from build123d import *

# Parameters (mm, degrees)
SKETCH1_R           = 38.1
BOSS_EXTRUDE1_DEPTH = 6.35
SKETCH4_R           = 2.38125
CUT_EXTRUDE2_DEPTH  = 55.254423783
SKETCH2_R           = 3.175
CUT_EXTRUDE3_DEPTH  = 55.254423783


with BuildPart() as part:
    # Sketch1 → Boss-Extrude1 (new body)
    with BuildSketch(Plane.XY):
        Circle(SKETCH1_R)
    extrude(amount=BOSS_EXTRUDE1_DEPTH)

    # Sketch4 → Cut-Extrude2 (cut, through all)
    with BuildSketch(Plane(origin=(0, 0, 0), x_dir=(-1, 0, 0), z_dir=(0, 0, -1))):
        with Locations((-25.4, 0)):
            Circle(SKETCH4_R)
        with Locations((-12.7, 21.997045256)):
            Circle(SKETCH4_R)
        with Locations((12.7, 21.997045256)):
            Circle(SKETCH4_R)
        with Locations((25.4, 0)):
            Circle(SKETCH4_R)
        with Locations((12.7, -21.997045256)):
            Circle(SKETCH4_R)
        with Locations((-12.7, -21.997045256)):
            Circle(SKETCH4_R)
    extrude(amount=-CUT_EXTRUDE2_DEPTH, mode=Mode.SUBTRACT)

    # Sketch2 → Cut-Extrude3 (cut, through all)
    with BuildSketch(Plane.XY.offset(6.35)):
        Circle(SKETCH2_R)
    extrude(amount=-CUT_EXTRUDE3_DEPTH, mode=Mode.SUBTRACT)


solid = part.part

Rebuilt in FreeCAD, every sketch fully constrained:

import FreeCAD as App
import Part
import Sketcher

V = App.Vector
Q = App.Units.Quantity

doc = App.newDocument("Part")
params = doc.addObject("Spreadsheet::Sheet", "Params")
for row, (alias, value) in enumerate([
    ("sketch1_diameter", "3 in"),
    ("pad1_length", "0.25 in"),
    ("sketch2_diameter", "0.1875 in"),
    ("sketch3_diameter", "0.25 in"),
], start=1):
    params.set(f"A{row}", alias)
    params.set(f"B{row}", "=" + value)
    params.setAlias(f"B{row}", alias)

body = doc.addObject("PartDesign::Body", "Body")

sketch1 = body.newObject("Sketcher::SketchObject", "Sketch")
sketch1.AttachmentSupport = (doc.getObject("XY_Plane"), [""])
sketch1.MapMode = "FlatFace"
sketch1.addGeometry(Part.Circle(V(0, 0, 0), V(0, 0, 1), 38), False)
sketch1.addConstraint([
    Sketcher.Constraint("Coincident", 0, 3, -1, 1),
    Sketcher.Constraint("Diameter", 0, Q("3 in")),
])
sketch1.setExpression("Constraints[1]", "Params.sketch1_diameter")
pad1 = body.newObject("PartDesign::Pad", "Pad")
pad1.Profile = sketch1
pad1.setExpression("Length", "Params.pad1_length")

sketch2 = body.newObject("Sketcher::SketchObject", "Sketch001")
sketch2.AttachmentSupport = (doc.getObject("XY_Plane"), [""])
sketch2.MapMode = "FlatFace"
sketch2.addGeometry([
    Part.Circle(V(25.4, 0, 0), V(0, 0, 1), 2.4),
    Part.Circle(V(12.7, 22, 0), V(0, 0, 1), 2.4),
    Part.Circle(V(-12.7, 22, 0), V(0, 0, 1), 2.4),
    Part.Circle(V(-25.4, 0, 0), V(0, 0, 1), 2.4),
    Part.Circle(V(-12.7, -22, 0), V(0, 0, 1), 2.4),
    Part.Circle(V(12.7, -22, 0), V(0, 0, 1), 2.4),
], False)
sketch2.addConstraint([
    Sketcher.Constraint("Equal", 0, 1),
    Sketcher.Constraint("Equal", 1, 2),
    Sketcher.Constraint("Equal", 2, 3),
    Sketcher.Constraint("Equal", 3, 4),
    Sketcher.Constraint("Equal", 4, 5),
    Sketcher.Constraint("Symmetric", 0, 3, 3, 3, -1, 1),
    Sketcher.Constraint("Symmetric", 1, 3, 4, 3, -1, 1),
    Sketcher.Constraint("Symmetric", 2, 3, 5, 3, -1, 1),
    Sketcher.Constraint("Symmetric", 1, 3, 2, 3, -2),
    Sketcher.Constraint("PointOnObject", 0, 3, -1),
    Sketcher.Constraint("Diameter", 0, Q("0.1875 in")),
    Sketcher.Constraint("DistanceX", -1, 1, 0, 3, Q("1 in")),
    Sketcher.Constraint("DistanceX", 2, 3, 1, 3, Q("1 in")),
    Sketcher.Constraint("DistanceY", 4, 3, 2, 3, 43.994091),
])
sketch2.setExpression("Constraints[10]", "Params.sketch2_diameter")
pocket1 = body.newObject("PartDesign::Pocket", "Pocket")
pocket1.Profile = sketch2
pocket1.Type = "ThroughAll"
pocket1.Reversed = True

sketch3 = body.newObject("Sketcher::SketchObject", "Sketch002")
sketch3.AttachmentSupport = (doc.getObject("XY_Plane"), [""])
sketch3.MapMode = "FlatFace"
sketch3.AttachmentOffset = App.Placement(V(0, 0, 0.25 * 25.4), App.Rotation())
sketch3.addGeometry(Part.Circle(V(0, 0, 0), V(0, 0, 1), 3.2), False)
sketch3.addConstraint([
    Sketcher.Constraint("Coincident", 0, 3, -1, 1),
    Sketcher.Constraint("Diameter", 0, Q("0.25 in")),
])
sketch3.setExpression("Constraints[1]", "Params.sketch3_diameter")
pocket2 = body.newObject("PartDesign::Pocket", "Pocket001")
pocket2.Profile = sketch3
pocket2.Type = "ThroughAll"

doc.recompute()
